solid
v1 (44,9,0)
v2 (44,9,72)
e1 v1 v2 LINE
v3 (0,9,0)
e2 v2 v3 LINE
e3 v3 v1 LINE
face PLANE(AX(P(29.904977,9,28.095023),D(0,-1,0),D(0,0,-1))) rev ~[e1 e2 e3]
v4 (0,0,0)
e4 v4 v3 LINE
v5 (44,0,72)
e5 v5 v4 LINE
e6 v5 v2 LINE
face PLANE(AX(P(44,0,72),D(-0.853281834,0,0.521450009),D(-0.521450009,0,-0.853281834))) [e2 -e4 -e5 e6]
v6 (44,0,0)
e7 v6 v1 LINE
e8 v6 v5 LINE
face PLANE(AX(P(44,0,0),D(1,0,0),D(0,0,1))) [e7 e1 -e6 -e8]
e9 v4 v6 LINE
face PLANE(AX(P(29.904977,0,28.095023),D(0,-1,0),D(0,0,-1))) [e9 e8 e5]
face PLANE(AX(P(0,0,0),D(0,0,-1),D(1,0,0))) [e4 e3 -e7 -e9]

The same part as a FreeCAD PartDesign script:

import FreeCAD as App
import Part
import Sketcher
Q = App.Units.Quantity

doc = App.newDocument("Part")
body = doc.addObject("PartDesign::Body", "Body")

# Sketch on XZ plane
sketch1 = body.newObject("Sketcher::SketchObject", "Sketch")
sketch1.AttachmentSupport = (doc.getObject("XZ_Plane"), [""])
sketch1.MapMode = "FlatFace"
sketch1.addGeometry([
    Part.LineSegment(App.Vector(44, 72, 0), App.Vector(0, 0, 0)),
    Part.LineSegment(App.Vector(0, 0, 0), App.Vector(44, 0, 0)),
    Part.LineSegment(App.Vector(44, 0, 0), App.Vector(44, 72, 0)),
], False)
sketch1.addConstraint([
    Sketcher.Constraint("Coincident", 0, 2, 1, 1),
    Sketcher.Constraint("Coincident", 1, 2, 2, 1),
    Sketcher.Constraint("Coincident", 2, 2, 0, 1),
    Sketcher.Constraint("Horizontal", 1),
    Sketcher.Constraint("Vertical", 2),
    Sketcher.Constraint("Coincident", 0, 2, -1, 1),
    Sketcher.Constraint("DistanceX", 1, 1, 1, 2, Q("44 mm")),
    Sketcher.Constraint("DistanceY", 2, 1, 2, 2, Q("72 mm")),
])
pad1 = body.newObject("PartDesign::Pad", "Pad")
pad1.Profile = sketch1
pad1.Length = 9
pad1.Reversed = True

doc.recompute()
